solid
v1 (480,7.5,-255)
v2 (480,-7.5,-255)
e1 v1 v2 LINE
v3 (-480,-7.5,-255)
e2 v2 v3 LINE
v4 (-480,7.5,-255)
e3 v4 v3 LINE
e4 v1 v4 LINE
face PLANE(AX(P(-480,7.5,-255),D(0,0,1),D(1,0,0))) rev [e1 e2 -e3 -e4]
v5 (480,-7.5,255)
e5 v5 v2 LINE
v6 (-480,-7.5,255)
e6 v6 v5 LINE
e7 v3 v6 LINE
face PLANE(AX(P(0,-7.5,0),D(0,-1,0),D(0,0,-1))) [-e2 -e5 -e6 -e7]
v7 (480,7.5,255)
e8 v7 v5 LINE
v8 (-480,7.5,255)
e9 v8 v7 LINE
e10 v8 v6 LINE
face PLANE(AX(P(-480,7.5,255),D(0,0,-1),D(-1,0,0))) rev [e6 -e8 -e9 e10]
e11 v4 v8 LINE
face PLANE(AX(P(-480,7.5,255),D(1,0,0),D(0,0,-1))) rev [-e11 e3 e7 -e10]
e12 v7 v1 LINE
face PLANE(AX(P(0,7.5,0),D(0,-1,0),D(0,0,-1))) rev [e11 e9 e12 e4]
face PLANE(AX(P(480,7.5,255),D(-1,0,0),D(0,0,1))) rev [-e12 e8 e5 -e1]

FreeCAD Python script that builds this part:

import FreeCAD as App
import Part
import Sketcher

V = App.Vector

doc = App.newDocument("Part")
params = doc.addObject("Spreadsheet::Sheet", "Params")
for row, (alias, value) in enumerate([
    ("sketch1_width", "960 mm"),
    ("sketch1_height", "510 mm"),
    ("pad1_length", "15 mm"),
], start=1):
    params.set(f"A{row}", alias)
    params.set(f"B{row}", "=" + value)
    params.setAlias(f"B{row}", alias)

body = doc.addObject("PartDesign::Body", "Body")

# Sketch on XZ plane
sketch1 = body.newObject("Sketcher::SketchObject", "Sketch")
sketch1.AttachmentSupport = (doc.getObject("XZ_Plane"), [""])
sketch1.MapMode = "FlatFace"
sketch1.addGeometry([
    Part.LineSegment(V(-480, -255, 0), V(-480, 255, 0)),
    Part.LineSegment(V(-480, 255, 0), V(480, 255, 0)),
    Part.LineSegment(V(480, 255, 0), V(480, -255, 0)),
    Part.LineSegment(V(480, -255, 0), V(-480, -255, 0)),
], False)
sketch1.addConstraint([
    Sketcher.Constraint("Coincident", 0, 2, 1, 1),
    Sketcher.Constraint("Coincident", 1, 2, 2, 1),
    Sketcher.Constraint("Coincident", 2, 2, 3, 1),
    Sketcher.Constraint("Coincident", 3, 2, 0, 1),
    Sketcher.Constraint("Vertical", 0),
    Sketcher.Constraint("Horizontal", 1),
    Sketcher.Constraint("Vertical", 2),
    Sketcher.Constraint("Horizontal", 3),
    Sketcher.Constraint("Symmetric", 0, 2, 2, 2, -1, 1),
    Sketcher.Constraint("DistanceX", 1, 1, 1, 2, 960.0),
    Sketcher.Constraint("DistanceY", 0, 1, 0, 2, 510.0),
])
sketch1.setExpression("Constraints[9]", "Params.sketch1_width")
sketch1.setExpression("Constraints[10]", "Params.sketch1_height")
pad1 = body.newObject("PartDesign::Pad", "Pad")
pad1.Profile = sketch1
pad1.setExpression("Length", "Params.pad1_length")
pad1.Midplane = True

doc.recompute()
